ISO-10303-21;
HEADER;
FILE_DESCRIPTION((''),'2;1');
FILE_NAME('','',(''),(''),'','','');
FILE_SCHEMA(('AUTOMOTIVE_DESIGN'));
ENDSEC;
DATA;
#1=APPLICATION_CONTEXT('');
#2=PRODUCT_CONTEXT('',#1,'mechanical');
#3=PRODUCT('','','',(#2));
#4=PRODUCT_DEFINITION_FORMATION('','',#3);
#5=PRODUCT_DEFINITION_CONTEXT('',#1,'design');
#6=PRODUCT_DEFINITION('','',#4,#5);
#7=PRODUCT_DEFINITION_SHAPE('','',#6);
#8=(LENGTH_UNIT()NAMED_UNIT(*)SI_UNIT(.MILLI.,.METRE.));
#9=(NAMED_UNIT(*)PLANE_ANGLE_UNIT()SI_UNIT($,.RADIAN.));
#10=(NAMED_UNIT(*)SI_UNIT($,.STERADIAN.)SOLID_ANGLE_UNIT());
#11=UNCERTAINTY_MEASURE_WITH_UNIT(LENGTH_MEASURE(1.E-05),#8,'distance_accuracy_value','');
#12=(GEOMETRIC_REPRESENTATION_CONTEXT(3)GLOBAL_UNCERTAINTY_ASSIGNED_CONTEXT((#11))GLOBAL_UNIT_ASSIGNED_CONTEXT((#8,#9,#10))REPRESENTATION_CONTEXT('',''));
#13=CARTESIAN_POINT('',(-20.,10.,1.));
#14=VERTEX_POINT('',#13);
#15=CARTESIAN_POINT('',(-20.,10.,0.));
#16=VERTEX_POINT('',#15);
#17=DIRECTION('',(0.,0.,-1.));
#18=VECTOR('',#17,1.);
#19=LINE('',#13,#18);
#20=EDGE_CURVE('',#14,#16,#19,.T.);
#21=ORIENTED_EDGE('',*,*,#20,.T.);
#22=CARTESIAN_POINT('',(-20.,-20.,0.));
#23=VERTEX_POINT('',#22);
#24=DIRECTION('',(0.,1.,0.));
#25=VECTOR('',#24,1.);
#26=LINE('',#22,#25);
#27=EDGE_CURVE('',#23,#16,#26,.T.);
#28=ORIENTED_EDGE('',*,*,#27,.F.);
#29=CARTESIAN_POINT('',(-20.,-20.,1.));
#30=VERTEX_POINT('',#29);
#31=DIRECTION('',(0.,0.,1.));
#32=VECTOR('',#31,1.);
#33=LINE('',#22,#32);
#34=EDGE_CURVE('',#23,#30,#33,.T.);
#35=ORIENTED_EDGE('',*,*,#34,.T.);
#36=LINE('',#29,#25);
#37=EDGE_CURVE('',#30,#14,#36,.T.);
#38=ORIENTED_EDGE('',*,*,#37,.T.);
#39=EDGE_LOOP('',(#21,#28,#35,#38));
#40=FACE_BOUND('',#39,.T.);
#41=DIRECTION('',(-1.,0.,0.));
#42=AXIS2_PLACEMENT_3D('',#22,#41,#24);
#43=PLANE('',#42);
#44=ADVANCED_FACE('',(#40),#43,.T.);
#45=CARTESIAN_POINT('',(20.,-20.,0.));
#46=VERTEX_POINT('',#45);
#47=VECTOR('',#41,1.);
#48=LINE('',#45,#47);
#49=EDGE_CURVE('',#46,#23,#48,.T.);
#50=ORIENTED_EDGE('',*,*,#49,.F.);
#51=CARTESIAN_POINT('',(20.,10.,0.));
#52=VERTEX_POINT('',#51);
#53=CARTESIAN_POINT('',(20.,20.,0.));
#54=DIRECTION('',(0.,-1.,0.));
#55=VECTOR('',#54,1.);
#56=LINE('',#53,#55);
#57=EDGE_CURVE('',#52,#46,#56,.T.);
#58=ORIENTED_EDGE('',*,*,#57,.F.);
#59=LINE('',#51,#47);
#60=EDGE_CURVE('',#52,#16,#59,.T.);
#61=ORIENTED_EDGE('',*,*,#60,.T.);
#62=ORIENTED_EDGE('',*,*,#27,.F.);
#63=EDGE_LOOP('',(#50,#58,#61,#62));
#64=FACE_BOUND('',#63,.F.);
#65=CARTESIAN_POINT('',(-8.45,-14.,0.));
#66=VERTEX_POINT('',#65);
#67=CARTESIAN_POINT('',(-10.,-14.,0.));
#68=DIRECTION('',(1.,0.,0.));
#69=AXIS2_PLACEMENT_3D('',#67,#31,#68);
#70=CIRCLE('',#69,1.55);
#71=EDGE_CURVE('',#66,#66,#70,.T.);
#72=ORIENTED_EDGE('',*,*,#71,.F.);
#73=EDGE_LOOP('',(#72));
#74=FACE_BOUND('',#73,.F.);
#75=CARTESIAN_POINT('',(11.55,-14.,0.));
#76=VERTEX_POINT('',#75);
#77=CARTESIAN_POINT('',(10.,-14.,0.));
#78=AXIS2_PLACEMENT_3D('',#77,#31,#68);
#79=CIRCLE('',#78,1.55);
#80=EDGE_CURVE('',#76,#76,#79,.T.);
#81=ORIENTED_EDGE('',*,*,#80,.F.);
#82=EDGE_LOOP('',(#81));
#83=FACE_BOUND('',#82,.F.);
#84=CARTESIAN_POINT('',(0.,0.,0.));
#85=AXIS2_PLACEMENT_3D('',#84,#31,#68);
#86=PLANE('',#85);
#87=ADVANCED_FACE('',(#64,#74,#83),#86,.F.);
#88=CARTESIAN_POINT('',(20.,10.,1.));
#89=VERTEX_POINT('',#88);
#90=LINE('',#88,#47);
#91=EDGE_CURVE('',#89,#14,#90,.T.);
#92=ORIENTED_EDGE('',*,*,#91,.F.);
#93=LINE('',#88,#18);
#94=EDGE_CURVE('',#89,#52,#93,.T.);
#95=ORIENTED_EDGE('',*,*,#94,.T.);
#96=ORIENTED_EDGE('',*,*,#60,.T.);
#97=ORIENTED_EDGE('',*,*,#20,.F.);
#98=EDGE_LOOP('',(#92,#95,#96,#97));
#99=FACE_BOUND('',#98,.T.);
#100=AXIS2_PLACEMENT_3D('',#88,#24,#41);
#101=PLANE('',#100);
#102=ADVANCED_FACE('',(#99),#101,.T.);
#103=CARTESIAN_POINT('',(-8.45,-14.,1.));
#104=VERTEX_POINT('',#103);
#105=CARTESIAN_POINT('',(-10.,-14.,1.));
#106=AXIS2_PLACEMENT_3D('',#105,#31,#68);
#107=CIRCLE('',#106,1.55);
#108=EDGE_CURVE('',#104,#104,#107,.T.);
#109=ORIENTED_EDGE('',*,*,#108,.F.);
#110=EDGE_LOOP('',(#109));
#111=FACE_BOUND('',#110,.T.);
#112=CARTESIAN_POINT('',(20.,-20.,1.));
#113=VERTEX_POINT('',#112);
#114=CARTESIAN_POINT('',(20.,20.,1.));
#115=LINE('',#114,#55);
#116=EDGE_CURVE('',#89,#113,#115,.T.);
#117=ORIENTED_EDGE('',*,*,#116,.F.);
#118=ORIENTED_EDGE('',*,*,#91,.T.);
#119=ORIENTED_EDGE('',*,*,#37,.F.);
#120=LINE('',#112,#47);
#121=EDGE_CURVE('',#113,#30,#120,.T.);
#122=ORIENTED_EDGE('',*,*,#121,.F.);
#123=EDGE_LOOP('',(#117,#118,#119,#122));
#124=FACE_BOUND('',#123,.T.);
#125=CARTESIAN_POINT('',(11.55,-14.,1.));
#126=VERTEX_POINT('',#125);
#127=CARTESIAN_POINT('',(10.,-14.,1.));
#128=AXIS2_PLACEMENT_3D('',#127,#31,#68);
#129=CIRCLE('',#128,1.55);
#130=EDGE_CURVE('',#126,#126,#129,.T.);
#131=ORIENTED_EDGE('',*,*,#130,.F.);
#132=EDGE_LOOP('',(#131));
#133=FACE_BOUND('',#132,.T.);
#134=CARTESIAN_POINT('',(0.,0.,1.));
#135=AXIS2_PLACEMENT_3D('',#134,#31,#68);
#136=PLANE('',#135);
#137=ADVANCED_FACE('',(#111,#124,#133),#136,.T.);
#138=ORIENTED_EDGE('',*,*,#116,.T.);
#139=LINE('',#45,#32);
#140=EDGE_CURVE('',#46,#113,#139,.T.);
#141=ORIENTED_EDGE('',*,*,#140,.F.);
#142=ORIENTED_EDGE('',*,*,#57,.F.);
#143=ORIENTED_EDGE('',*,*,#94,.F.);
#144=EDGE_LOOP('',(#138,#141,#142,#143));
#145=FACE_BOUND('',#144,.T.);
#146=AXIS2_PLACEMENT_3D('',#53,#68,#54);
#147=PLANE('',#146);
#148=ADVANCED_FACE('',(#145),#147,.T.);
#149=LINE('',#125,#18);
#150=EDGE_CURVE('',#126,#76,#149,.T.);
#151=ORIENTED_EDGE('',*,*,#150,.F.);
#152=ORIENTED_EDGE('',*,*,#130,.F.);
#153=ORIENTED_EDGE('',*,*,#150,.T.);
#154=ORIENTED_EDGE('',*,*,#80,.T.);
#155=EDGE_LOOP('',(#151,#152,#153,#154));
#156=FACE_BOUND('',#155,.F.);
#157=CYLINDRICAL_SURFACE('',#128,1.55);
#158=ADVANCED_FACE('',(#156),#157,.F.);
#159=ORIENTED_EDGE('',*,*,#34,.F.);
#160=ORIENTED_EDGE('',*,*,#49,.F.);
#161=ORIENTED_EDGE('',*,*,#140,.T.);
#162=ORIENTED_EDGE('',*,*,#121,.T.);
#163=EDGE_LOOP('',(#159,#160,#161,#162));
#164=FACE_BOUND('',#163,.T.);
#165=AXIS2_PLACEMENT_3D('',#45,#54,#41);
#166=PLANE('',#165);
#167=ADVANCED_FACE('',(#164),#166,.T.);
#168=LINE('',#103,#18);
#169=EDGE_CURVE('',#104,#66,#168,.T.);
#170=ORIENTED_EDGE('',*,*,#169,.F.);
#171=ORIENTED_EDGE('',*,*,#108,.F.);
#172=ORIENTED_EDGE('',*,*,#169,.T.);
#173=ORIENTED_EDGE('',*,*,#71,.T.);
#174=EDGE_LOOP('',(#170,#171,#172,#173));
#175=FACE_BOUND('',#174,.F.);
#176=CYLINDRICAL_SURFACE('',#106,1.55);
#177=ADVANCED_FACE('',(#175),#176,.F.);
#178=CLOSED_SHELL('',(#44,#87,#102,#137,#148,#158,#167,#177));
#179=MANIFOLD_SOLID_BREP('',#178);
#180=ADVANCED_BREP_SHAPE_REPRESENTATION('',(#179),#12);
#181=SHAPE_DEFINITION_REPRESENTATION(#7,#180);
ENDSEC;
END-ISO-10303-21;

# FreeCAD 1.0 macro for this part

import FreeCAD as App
import Part
import Sketcher


def add_polygon(sketch, points):
    """Adds a closed chain of lines whose ends are joined by coincident constraints."""
    first, n = sketch.GeometryCount, len(points)
    for a, b in zip(points, points[1:] + points[:1]):
        sketch.addGeometry(Part.LineSegment(App.Vector(*a, 0), App.Vector(*b, 0)), False)
    for i in range(n):
        sketch.addConstraint(Sketcher.Constraint("Coincident", first + i, 2, first + (i + 1) % n, 1))

doc = App.newDocument("Part")
body = doc.addObject("PartDesign::Body", "Body")

sketch1 = doc.addObject("Sketcher::SketchObject", "Sketch")
body.addObject(sketch1)
sketch1.AttachmentSupport = (doc.XY_Plane, [""])
sketch1.MapMode = "FlatFace"
add_polygon(sketch1, [(20, 20), (-20, 20), (-20, -20), (20, -20)])
sketch1.addConstraint(Sketcher.Constraint("Horizontal", 0))
sketch1.addConstraint(Sketcher.Constraint("Vertical", 1))
sketch1.addConstraint(Sketcher.Constraint("Horizontal", 2))
sketch1.addConstraint(Sketcher.Constraint("Vertical", 3))
sketch1.addConstraint(Sketcher.Constraint("Symmetric", 0, 2, 2, 2, -1, 1))
sketch1.addConstraint(Sketcher.Constraint("Equal", 2, 1))
sketch1.addConstraint(Sketcher.Constraint("DistanceX", 0, 2, 0, 1, 40.0))
pad1 = doc.addObject("PartDesign::Pad", "Pad")
body.addObject(pad1)
pad1.Profile = sketch1
pad1.Length = 1

sketch2 = doc.addObject("Sketcher::SketchObject", "Sketch001")
body.addObject(sketch2)
sketch2.AttachmentSupport = (doc.XY_Plane, [""])
sketch2.MapMode = "FlatFace"
sketch2.AttachmentOffset = App.Placement(App.Vector(0, 0, 1), App.Rotation())
sketch2.addGeometry(Part.Circle(App.Vector(-10, -14, 0), App.Vector(0, 0, 1), 1.6), False)
sketch2.addGeometry(Part.Circle(App.Vector(10, -14, 0), App.Vector(0, 0, 1), 1.6), False)
sketch2.addConstraint(Sketcher.Constraint("Equal", 0, 1))
sketch2.addConstraint(Sketcher.Constraint("Symmetric", 0, 3, 1, 3, -2))
sketch2.addConstraint(Sketcher.Constraint("Diameter", 0, 3.1))
sketch2.addConstraint(Sketcher.Constraint("DistanceX", 0, 3, -1, 1, 10.0))
sketch2.addConstraint(Sketcher.Constraint("DistanceY", 0, 3, -1, 1, 14.0))
pocket1 = doc.addObject("PartDesign::Pocket", "Pocket")
body.addObject(pocket1)
pocket1.Profile = sketch2
pocket1.Length = 1

sketch3 = doc.addObject("Sketcher::SketchObject", "Sketch002")
body.addObject(sketch3)
sketch3.AttachmentSupport = (doc.XY_Plane, [""])
sketch3.MapMode = "FlatFace"
sketch3.AttachmentOffset = App.Placement(App.Vector(0, 0, 1), App.Rotation())
add_polygon(sketch3, [(20, 20), (-20, 20), (-20, 10), (20, 10)])
sketch3.addConstraint(Sketcher.Constraint("Horizontal", 0))
sketch3.addConstraint(Sketcher.Constraint("Vertical", 1))
sketch3.addConstraint(Sketcher.Constraint("Horizontal", 2))
sketch3.addConstraint(Sketcher.Constraint("Vertical", 3))
sketch3.addConstraint(Sketcher.Constraint("DistanceX", 0, 2, 0, 1, 40.0))
sketch3.addConstraint(Sketcher.Constraint("DistanceY", 1, 2, 1, 1, 10.0))
sketch3.addConstraint(Sketcher.Constraint("DistanceY", -1, 1, 1, 2, 10.0))
sketch3.addConstraint(Sketcher.Constraint("DistanceX", 0, 2, -1, 1, 20.0))
pocket2 = doc.addObject("PartDesign::Pocket", "Pocket001")
body.addObject(pocket2)
pocket2.Profile = sketch3
pocket2.Length = 1

doc.recompute()
